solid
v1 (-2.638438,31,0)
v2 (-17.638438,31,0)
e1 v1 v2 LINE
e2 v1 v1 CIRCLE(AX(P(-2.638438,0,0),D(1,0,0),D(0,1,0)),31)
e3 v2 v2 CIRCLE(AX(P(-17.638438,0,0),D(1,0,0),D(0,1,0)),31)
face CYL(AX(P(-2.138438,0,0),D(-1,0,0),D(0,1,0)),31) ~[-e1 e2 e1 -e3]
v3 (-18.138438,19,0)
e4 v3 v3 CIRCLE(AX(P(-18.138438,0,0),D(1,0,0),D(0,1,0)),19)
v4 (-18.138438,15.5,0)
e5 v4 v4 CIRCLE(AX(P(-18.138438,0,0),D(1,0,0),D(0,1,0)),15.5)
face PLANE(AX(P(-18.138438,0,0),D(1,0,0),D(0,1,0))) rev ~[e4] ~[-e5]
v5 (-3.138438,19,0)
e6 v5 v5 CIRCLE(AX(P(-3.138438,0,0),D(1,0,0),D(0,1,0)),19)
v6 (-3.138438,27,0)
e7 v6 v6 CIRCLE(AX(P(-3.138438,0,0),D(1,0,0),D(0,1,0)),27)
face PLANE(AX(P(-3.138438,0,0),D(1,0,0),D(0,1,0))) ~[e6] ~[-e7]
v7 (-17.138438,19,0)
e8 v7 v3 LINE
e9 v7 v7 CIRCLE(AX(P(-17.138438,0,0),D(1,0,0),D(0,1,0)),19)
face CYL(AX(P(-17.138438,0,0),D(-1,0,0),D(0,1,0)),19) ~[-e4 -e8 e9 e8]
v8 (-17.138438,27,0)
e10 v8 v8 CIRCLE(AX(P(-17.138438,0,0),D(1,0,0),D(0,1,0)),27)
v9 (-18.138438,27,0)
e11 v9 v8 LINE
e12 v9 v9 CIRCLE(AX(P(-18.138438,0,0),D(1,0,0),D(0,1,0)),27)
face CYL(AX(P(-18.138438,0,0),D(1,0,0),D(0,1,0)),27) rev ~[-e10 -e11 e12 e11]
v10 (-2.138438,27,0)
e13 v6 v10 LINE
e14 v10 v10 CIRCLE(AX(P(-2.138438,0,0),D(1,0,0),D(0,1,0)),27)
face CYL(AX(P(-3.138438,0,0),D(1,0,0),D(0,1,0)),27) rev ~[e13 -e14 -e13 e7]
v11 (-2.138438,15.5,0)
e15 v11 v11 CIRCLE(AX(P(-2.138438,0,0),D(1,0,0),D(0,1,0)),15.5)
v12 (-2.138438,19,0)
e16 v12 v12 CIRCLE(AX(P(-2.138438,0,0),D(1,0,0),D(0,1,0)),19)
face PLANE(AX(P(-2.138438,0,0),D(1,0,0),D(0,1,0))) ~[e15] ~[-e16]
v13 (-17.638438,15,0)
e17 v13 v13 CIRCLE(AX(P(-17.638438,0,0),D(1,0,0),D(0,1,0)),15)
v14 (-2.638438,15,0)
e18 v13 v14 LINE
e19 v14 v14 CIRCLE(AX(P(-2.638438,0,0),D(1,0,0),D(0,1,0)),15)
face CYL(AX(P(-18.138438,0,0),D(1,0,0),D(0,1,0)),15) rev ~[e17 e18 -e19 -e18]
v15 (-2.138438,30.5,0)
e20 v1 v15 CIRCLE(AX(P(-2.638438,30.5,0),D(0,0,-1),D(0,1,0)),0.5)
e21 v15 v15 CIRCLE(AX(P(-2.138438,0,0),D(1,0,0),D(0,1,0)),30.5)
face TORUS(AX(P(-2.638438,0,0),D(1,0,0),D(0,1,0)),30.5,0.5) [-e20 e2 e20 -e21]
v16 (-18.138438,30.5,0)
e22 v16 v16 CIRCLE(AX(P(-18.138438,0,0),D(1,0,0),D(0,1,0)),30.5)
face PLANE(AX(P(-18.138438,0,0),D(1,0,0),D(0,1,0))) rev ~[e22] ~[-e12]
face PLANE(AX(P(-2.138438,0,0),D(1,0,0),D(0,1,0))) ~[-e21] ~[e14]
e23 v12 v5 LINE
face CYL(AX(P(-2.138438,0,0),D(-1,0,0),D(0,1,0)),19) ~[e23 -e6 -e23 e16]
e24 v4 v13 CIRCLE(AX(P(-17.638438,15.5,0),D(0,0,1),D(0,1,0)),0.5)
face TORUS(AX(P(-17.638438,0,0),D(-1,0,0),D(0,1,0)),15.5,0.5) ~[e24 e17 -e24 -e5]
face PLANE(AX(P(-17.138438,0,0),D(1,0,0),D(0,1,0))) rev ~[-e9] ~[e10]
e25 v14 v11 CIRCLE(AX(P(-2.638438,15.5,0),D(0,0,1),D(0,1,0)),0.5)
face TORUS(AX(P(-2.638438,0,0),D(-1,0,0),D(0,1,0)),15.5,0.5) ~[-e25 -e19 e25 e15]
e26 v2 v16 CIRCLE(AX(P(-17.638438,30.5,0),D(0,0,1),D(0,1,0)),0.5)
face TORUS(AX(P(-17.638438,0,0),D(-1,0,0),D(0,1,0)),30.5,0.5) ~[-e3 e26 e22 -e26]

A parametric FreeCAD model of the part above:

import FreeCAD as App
import Part
import Sketcher
from FreeCAD import Vector


def edges_at(feature, points):
    """Names of the edges that pass closest to the given points."""
    edges = feature.Shape.Edges
    near = lambda p: min(range(len(edges)), key=lambda i: edges[i].distToShape(Part.Vertex(*p))[0])
    return sorted({f"Edge{near(p) + 1}" for p in points})


def add_polygon(sketch, points):
    """Adds a closed chain of lines whose ends are joined by coincident constraints."""
    first, n = sketch.GeometryCount, len(points)
    for a, b in zip(points, points[1:] + points[:1]):
        sketch.addGeometry(Part.LineSegment(App.Vector(*a, 0), App.Vector(*b, 0)), False)
    for i in range(n):
        sketch.addConstraint(Sketcher.Constraint("Coincident", first + i, 2, first + (i + 1) % n, 1))

doc = App.newDocument("Part")
params = doc.addObject("Spreadsheet::Sheet", "Params")
for row, (alias, value) in enumerate([
    ("sketch1_width", "16 mm"),
    ("sketch1_width2", "1 mm"),
    ("sketch1_height", "4 mm"),
    ("sketch1_height2", "8 mm"),
    ("revolution_angle", "360 deg"),
    ("fillet_radius", "0.5 mm"),
], start=1):
    params.set(f"A{row}", alias)
    params.set(f"B{row}", "=" + value)
    params.setAlias(f"B{row}", alias)

body = doc.addObject("PartDesign::Body", "Body")

sketch1 = doc.addObject("Sketcher::SketchObject", "Sketch")
body.addObject(sketch1)
sketch1.AttachmentSupport = (doc.XY_Plane, [""])
sketch1.MapMode = "FlatFace"
add_polygon(sketch1, [(-2.1, 31), (-18.1, 31), (-18.1, 27), (-17.1, 27), (-17.1, 19), (-18.1, 19), (-18.1, 15), (-2.1, 15), (-2.1, 19), (-3.1, 19), (-3.1, 27), (-2.1, 27)])
sketch1.addConstraint(Sketcher.Constraint("Horizontal", 0))
sketch1.addConstraint(Sketcher.Constraint("Vertical", 1))
sketch1.addConstraint(Sketcher.Constraint("Horizontal", 2))
sketch1.addConstraint(Sketcher.Constraint("Vertical", 3))
sketch1.addConstraint(Sketcher.Constraint("Horizontal", 4))
sketch1.addConstraint(Sketcher.Constraint("Vertical", 5))
sketch1.addConstraint(Sketcher.Constraint("Horizontal", 6))
sketch1.addConstraint(Sketcher.Constraint("Vertical", 7))
sketch1.addConstraint(Sketcher.Constraint("Horizontal", 8))
sketch1.addConstraint(Sketcher.Constraint("Vertical", 9))
sketch1.addConstraint(Sketcher.Constraint("Horizontal", 10))
sketch1.addConstraint(Sketcher.Constraint("Vertical", 11))
sketch1.addConstraint(Sketcher.Constraint("Horizontal", 4, 2, 7, 2))
sketch1.addConstraint(Sketcher.Constraint("Horizontal", 2, 2, 9, 2))
sketch1.addConstraint(Sketcher.Constraint("Vertical", 1, 2, 4, 2))
sketch1.addConstraint(Sketcher.Constraint("Vertical", 7, 2, 10, 2))
sketch1.addConstraint(Sketcher.Constraint("Equal", 4, 8))
sketch1.addConstraint(Sketcher.Constraint("Equal", 1, 5))
sketch1.addConstraint(Sketcher.Constraint("DistanceX", 0, 2, 0, 1, 16.0))
sketch1.addConstraint(Sketcher.Constraint("DistanceX", 2, 1, 2, 2, 1.0))
sketch1.addConstraint(Sketcher.Constraint("DistanceY", 1, 2, 1, 1, 4.0))
sketch1.addConstraint(Sketcher.Constraint("DistanceY", 3, 2, 3, 1, 8.0))
sketch1.addConstraint(Sketcher.Constraint("DistanceY", -1, 1, 0, 2, 31.0))
sketch1.addConstraint(Sketcher.Constraint("DistanceX", 0, 2, -1, 1, 18.138438))
sketch1.setExpression("Constraints[30]", "Params.sketch1_width")
sketch1.setExpression("Constraints[31]", "Params.sketch1_width2")
sketch1.setExpression("Constraints[32]", "Params.sketch1_height")
sketch1.setExpression("Constraints[33]", "Params.sketch1_height2")
revolution = doc.addObject("PartDesign::Revolution", "Revolution")
body.addObject(revolution)
revolution.Profile = sketch1
revolution.ReferenceAxis = (sketch1, ["H_Axis"])
revolution.setExpression("Angle", "Params.revolution_angle")
doc.recompute()

fillet = doc.addObject("PartDesign::Fillet", "Fillet")
body.addObject(fillet)
fillet.Base = (revolution, edges_at(revolution, [
    (-2.138, -31, 0),
    (-2.138, -15, 0),
    (-18.138, -31, 0),
    (-18.138, -15, 0),
]))
fillet.setExpression("Radius", "Params.fillet_radius")

doc.recompute()
